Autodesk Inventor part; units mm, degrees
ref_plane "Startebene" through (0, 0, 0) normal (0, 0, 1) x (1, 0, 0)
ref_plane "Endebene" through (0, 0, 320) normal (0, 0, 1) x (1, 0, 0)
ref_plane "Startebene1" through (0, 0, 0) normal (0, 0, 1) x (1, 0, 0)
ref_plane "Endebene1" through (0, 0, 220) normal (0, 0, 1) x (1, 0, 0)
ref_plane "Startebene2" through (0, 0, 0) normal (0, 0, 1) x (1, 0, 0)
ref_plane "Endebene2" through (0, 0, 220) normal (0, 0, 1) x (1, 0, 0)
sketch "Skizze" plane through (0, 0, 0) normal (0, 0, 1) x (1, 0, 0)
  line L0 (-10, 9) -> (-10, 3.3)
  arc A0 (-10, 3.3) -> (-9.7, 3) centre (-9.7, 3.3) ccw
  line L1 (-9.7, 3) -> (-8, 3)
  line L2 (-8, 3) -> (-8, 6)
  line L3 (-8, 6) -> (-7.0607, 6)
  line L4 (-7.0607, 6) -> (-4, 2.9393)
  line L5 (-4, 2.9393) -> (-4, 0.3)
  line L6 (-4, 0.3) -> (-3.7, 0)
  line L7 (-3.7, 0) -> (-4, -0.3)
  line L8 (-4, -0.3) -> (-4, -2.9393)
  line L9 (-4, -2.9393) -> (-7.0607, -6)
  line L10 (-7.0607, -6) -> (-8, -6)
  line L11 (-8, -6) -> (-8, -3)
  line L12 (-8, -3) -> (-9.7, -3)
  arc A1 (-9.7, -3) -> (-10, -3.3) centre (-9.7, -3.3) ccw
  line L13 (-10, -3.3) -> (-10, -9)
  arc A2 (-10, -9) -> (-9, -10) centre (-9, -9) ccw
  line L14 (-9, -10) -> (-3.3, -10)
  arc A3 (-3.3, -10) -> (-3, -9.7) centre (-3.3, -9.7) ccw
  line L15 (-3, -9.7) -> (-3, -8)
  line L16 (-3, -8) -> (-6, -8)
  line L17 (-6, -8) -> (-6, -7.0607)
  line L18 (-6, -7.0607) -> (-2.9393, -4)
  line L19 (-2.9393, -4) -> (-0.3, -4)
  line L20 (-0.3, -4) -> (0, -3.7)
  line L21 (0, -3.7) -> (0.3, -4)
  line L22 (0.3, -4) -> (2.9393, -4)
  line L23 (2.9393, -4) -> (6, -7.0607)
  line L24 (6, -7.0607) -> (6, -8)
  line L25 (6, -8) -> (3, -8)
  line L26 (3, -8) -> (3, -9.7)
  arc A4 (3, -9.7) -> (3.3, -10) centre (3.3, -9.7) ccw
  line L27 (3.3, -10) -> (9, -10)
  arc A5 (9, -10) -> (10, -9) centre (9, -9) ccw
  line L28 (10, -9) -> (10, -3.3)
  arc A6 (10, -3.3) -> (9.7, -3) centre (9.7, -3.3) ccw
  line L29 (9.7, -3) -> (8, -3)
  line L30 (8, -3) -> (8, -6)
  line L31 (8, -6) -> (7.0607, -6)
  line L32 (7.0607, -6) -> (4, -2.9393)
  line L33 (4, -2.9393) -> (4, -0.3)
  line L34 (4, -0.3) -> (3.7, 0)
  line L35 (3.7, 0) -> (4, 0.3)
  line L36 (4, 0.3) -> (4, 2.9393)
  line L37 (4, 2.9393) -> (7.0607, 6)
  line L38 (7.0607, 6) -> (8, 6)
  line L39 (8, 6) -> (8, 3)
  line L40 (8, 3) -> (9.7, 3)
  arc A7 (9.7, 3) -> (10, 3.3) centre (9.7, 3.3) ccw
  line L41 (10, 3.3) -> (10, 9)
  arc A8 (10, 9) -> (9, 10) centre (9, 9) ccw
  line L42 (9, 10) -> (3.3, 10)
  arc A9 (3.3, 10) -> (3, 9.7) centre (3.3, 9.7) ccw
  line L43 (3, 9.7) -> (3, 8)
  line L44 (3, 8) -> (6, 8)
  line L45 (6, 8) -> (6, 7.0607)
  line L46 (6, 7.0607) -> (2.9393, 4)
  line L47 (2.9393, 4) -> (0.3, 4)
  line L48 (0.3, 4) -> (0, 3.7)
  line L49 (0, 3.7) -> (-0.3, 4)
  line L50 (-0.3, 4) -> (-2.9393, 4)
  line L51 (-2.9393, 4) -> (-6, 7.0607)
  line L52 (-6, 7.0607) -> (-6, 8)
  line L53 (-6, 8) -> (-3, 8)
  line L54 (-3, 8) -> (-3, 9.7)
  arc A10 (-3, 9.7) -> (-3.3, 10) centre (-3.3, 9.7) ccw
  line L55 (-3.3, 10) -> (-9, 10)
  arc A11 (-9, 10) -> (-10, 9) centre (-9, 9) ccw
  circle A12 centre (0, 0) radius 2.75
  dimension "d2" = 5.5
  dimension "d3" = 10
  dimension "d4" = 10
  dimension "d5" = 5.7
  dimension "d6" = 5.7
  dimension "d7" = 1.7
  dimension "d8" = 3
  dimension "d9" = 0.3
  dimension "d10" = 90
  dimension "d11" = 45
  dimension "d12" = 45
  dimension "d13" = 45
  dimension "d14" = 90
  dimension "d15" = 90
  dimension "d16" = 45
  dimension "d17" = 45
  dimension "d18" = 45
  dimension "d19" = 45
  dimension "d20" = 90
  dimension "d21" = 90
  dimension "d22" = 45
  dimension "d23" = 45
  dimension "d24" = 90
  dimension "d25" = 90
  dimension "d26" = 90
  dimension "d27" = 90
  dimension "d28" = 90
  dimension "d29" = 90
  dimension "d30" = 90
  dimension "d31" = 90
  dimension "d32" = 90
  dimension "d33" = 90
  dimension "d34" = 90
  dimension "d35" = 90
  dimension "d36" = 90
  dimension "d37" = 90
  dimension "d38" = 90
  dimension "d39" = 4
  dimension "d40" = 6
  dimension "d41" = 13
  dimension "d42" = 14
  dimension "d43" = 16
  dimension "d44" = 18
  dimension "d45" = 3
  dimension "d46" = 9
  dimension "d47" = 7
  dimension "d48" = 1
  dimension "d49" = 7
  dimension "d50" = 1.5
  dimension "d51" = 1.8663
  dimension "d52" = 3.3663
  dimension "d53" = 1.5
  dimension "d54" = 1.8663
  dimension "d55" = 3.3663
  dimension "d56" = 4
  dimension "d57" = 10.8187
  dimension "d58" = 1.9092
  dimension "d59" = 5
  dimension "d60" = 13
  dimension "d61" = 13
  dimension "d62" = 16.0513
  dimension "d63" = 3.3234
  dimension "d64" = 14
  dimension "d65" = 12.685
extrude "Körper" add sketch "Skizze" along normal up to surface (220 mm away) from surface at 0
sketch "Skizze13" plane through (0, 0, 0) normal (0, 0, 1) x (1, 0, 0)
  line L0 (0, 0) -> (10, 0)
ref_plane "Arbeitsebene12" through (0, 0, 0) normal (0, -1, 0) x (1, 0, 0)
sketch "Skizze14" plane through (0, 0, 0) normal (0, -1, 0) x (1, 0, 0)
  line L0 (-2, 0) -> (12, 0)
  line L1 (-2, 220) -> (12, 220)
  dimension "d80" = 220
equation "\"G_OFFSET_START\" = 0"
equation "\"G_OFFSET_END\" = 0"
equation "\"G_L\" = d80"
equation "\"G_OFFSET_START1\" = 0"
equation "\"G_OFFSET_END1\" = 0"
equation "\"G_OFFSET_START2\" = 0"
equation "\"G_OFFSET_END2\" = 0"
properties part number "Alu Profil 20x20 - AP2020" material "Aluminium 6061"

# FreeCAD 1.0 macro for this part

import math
import FreeCAD as App
import Part
import Sketcher

V = App.Vector
Q = App.Units.Quantity

doc = App.newDocument("Part")
params = doc.addObject("Spreadsheet::Sheet", "Params")
for row, (alias, value) in enumerate([
    ("sketch1_radius", "1 mm"),
    ("sketch1_diameter", "5.5 mm"),
    ("sketch1_radius2", "0.3 mm"),
    ("sketch1_width", "3 mm"),
    ("sketch1_width2", "1.7 mm"),
    ("pad1_length", "220 mm"),
], start=1):
    params.set(f"A{row}", alias)
    params.set(f"B{row}", "=" + value)
    params.setAlias(f"B{row}", alias)

body = doc.addObject("PartDesign::Body", "Body")

sketch1 = doc.addObject("Sketcher::SketchObject", "Sketch")
body.addObject(sketch1)
sketch1.AttachmentSupport = (doc.XY_Plane, [""])
sketch1.MapMode = "FlatFace"
sketch1.addGeometry(Part.ArcOfCircle(Part.Circle(V(-9, 9, 0), V(0, 0, 1), 1), math.radians(90), math.radians(180)), False)
sketch1.addGeometry(Part.LineSegment(V(-10, 9, 0), V(-10, 3.3, 0)), False)
sketch1.addGeometry(Part.ArcOfCircle(Part.Circle(V(-9.7, 3.3, 0), V(0, 0, 1), 0.3), math.radians(180), math.radians(270)), False)
sketch1.addGeometry(Part.LineSegment(V(-9.7, 3, 0), V(-8, 3, 0)), False)
sketch1.addGeometry(Part.LineSegment(V(-8, 3, 0), V(-8, 6, 0)), False)
sketch1.addGeometry(Part.LineSegment(V(-8, 6, 0), V(-7.0607, 6, 0)), False)
sketch1.addGeometry(Part.LineSegment(V(-7.0607, 6, 0), V(-4, 2.9393, 0)), False)
sketch1.addGeometry(Part.LineSegment(V(-4, 2.9393, 0), V(-4, 0.3, 0)), False)
sketch1.addGeometry(Part.LineSegment(V(-4, 0.3, 0), V(-3.7, 0, 0)), False)
sketch1.addGeometry(Part.LineSegment(V(-3.7, 0, 0), V(-4, -0.3, 0)), False)
sketch1.addGeometry(Part.LineSegment(V(-4, -0.3, 0), V(-4, -2.9393, 0)), False)
sketch1.addGeometry(Part.LineSegment(V(-4, -2.9393, 0), V(-7.0607, -6, 0)), False)
sketch1.addGeometry(Part.LineSegment(V(-7.0607, -6, 0), V(-8, -6, 0)), False)
sketch1.addGeometry(Part.LineSegment(V(-8, -6, 0), V(-8, -3, 0)), False)
sketch1.addGeometry(Part.LineSegment(V(-8, -3, 0), V(-9.7, -3, 0)), False)
sketch1.addGeometry(Part.ArcOfCircle(Part.Circle(V(-9.7, -3.3, 0), V(0, 0, 1), 0.3), math.radians(90), math.radians(180)), False)
sketch1.addGeometry(Part.LineSegment(V(-10, -3.3, 0), V(-10, -9, 0)), False)
sketch1.addGeometry(Part.ArcOfCircle(Part.Circle(V(-9, -9, 0), V(0, 0, 1), 1), math.radians(180), math.radians(270)), False)
sketch1.addGeometry(Part.LineSegment(V(-9, -10, 0), V(-3.3, -10, 0)), False)
sketch1.addGeometry(Part.ArcOfCircle(Part.Circle(V(-3.3, -9.7, 0), V(0, 0, 1), 0.3), math.radians(-90), math.radians(0)), False)
sketch1.addGeometry(Part.LineSegment(V(-3, -9.7, 0), V(-3, -8, 0)), False)
sketch1.addGeometry(Part.LineSegment(V(-3, -8, 0), V(-6, -8, 0)), False)
sketch1.addGeometry(Part.LineSegment(V(-6, -8, 0), V(-6, -7.0607, 0)), False)
sketch1.addGeometry(Part.LineSegment(V(-6, -7.0607, 0), V(-2.9393, -4, 0)), False)
sketch1.addGeometry(Part.LineSegment(V(-2.9393, -4, 0), V(-0.3, -4, 0)), False)
sketch1.addGeometry(Part.LineSegment(V(-0.3, -4, 0), V(0, -3.7, 0)), False)
sketch1.addGeometry(Part.LineSegment(V(0, -3.7, 0), V(0.3, -4, 0)), False)
sketch1.addGeometry(Part.LineSegment(V(0.3, -4, 0), V(2.9393, -4, 0)), False)
sketch1.addGeometry(Part.LineSegment(V(2.9393, -4, 0), V(6, -7.0607, 0)), False)
sketch1.addGeometry(Part.LineSegment(V(6, -7.0607, 0), V(6, -8, 0)), False)
sketch1.addGeometry(Part.LineSegment(V(6, -8, 0), V(3, -8, 0)), False)
sketch1.addGeometry(Part.LineSegment(V(3, -8, 0), V(3, -9.7, 0)), False)
sketch1.addGeometry(Part.ArcOfCircle(Part.Circle(V(3.3, -9.7, 0), V(0, 0, 1), 0.3), math.radians(180), math.radians(270)), False)
sketch1.addGeometry(Part.LineSegment(V(3.3, -10, 0), V(9, -10, 0)), False)
sketch1.addGeometry(Part.ArcOfCircle(Part.Circle(V(9, -9, 0), V(0, 0, 1), 1), math.radians(-90), math.radians(0)), False)
sketch1.addGeometry(Part.LineSegment(V(10, -9, 0), V(10, -3.3, 0)), False)
sketch1.addGeometry(Part.ArcOfCircle(Part.Circle(V(9.7, -3.3, 0), V(0, 0, 1), 0.3), math.radians(0), math.radians(90)), False)
sketch1.addGeometry(Part.LineSegment(V(9.7, -3, 0), V(8, -3, 0)), False)
sketch1.addGeometry(Part.LineSegment(V(8, -3, 0), V(8, -6, 0)), False)
sketch1.addGeometry(Part.LineSegment(V(8, -6, 0), V(7.0607, -6, 0)), False)
sketch1.addGeometry(Part.LineSegment(V(7.0607, -6, 0), V(4, -2.9393, 0)), False)
sketch1.addGeometry(Part.LineSegment(V(4, -2.9393, 0), V(4, -0.3, 0)), False)
sketch1.addGeometry(Part.LineSegment(V(4, -0.3, 0), V(3.7, 0, 0)), False)
sketch1.addGeometry(Part.LineSegment(V(3.7, 0, 0), V(4, 0.3, 0)), False)
sketch1.addGeometry(Part.LineSegment(V(4, 0.3, 0), V(4, 2.9393, 0)), False)
sketch1.addGeometry(Part.LineSegment(V(4, 2.9393, 0), V(7.0607, 6, 0)), False)
sketch1.addGeometry(Part.LineSegment(V(7.0607, 6, 0), V(8, 6, 0)), False)
sketch1.addGeometry(Part.LineSegment(V(8, 6, 0), V(8, 3, 0)), False)
sketch1.addGeometry(Part.LineSegment(V(8, 3, 0), V(9.7, 3, 0)), False)
sketch1.addGeometry(Part.ArcOfCircle(Part.Circle(V(9.7, 3.3, 0), V(0, 0, 1), 0.3), math.radians(-90), math.radians(0)), False)
sketch1.addGeometry(Part.LineSegment(V(10, 3.3, 0), V(10, 9, 0)), False)
sketch1.addGeometry(Part.ArcOfCircle(Part.Circle(V(9, 9, 0), V(0, 0, 1), 1), math.radians(0), math.radians(90)), False)
sketch1.addGeometry(Part.LineSegment(V(9, 10, 0), V(3.3, 10, 0)), False)
sketch1.addGeometry(Part.ArcOfCircle(Part.Circle(V(3.3, 9.7, 0), V(0, 0, 1), 0.3), math.radians(90), math.radians(180)), False)
sketch1.addGeometry(Part.LineSegment(V(3, 9.7, 0), V(3, 8, 0)), False)
sketch1.addGeometry(Part.LineSegment(V(3, 8, 0), V(6, 8, 0)), False)
sketch1.addGeometry(Part.LineSegment(V(6, 8, 0), V(6, 7.0607, 0)), False)
sketch1.addGeometry(Part.LineSegment(V(6, 7.0607, 0), V(2.9393, 4, 0)), False)
sketch1.addGeometry(Part.LineSegment(V(2.9393, 4, 0), V(0.3, 4, 0)), False)
sketch1.addGeometry(Part.LineSegment(V(0.3, 4, 0), V(0, 3.7, 0)), False)
sketch1.addGeometry(Part.LineSegment(V(0, 3.7, 0), V(-0.3, 4, 0)), False)
sketch1.addGeometry(Part.LineSegment(V(-0.3, 4, 0), V(-2.9393, 4, 0)), False)
sketch1.addGeometry(Part.LineSegment(V(-2.9393, 4, 0), V(-6, 7.0607, 0)), False)
sketch1.addGeometry(Part.LineSegment(V(-6, 7.0607, 0), V(-6, 8, 0)), False)
sketch1.addGeometry(Part.LineSegment(V(-6, 8, 0), V(-3, 8, 0)), False)
sketch1.addGeometry(Part.LineSegment(V(-3, 8, 0), V(-3, 9.7, 0)), False)
sketch1.addGeometry(Part.ArcOfCircle(Part.Circle(V(-3.3, 9.7, 0), V(0, 0, 1), 0.3), math.radians(0), math.radians(90)), False)
sketch1.addGeometry(Part.LineSegment(V(-3.3, 10, 0), V(-9, 10, 0)), False)
sketch1.addGeometry(Part.Circle(V(0, 0, 0), V(0, 0, 1), 2.75), False)
sketch1.addConstraint(Sketcher.Constraint("Tangent", 0, 2, 1, 1))
sketch1.addConstraint(Sketcher.Constraint("Tangent", 1, 2, 2, 1))
sketch1.addConstraint(Sketcher.Constraint("Tangent", 2, 2, 3, 1))
sketch1.addConstraint(Sketcher.Constraint("Coincident", 3, 2, 4, 1))
sketch1.addConstraint(Sketcher.Constraint("Coincident", 4, 2, 5, 1))
sketch1.addConstraint(Sketcher.Constraint("Coincident", 5, 2, 6, 1))
sketch1.addConstraint(Sketcher.Constraint("Coincident", 6, 2, 7, 1))
sketch1.addConstraint(Sketcher.Constraint("Coincident", 7, 2, 8, 1))
sketch1.addConstraint(Sketcher.Constraint("Coincident", 8, 2, 9, 1))
sketch1.addConstraint(Sketcher.Constraint("Coincident", 9, 2, 10, 1))
sketch1.addConstraint(Sketcher.Constraint("Coincident", 10, 2, 11, 1))
sketch1.addConstraint(Sketcher.Constraint("Coincident", 11, 2, 12, 1))
sketch1.addConstraint(Sketcher.Constraint("Coincident", 12, 2, 13, 1))
sketch1.addConstraint(Sketcher.Constraint("Coincident", 13, 2, 14, 1))
sketch1.addConstraint(Sketcher.Constraint("Tangent", 14, 2, 15, 1))
sketch1.addConstraint(Sketcher.Constraint("Tangent", 15, 2, 16, 1))
sketch1.addConstraint(Sketcher.Constraint("Tangent", 16, 2, 17, 1))
sketch1.addConstraint(Sketcher.Constraint("Tangent", 17, 2, 18, 1))
sketch1.addConstraint(Sketcher.Constraint("Tangent", 18, 2, 19, 1))
sketch1.addConstraint(Sketcher.Constraint("Tangent", 19, 2, 20, 1))
sketch1.addConstraint(Sketcher.Constraint("Coincident", 20, 2, 21, 1))
sketch1.addConstraint(Sketcher.Constraint("Coincident", 21, 2, 22, 1))
sketch1.addConstraint(Sketcher.Constraint("Coincident", 22, 2, 23, 1))
sketch1.addConstraint(Sketcher.Constraint("Coincident", 23, 2, 24, 1))
sketch1.addConstraint(Sketcher.Constraint("Coincident", 24, 2, 25, 1))
sketch1.addConstraint(Sketcher.Constraint("Coincident", 25, 2, 26, 1))
sketch1.addConstraint(Sketcher.Constraint("Coincident", 26, 2, 27, 1))
sketch1.addConstraint(Sketcher.Constraint("Coincident", 27, 2, 28, 1))
sketch1.addConstraint(Sketcher.Constraint("Coincident", 28, 2, 29, 1))
sketch1.addConstraint(Sketcher.Constraint("Coincident", 29, 2, 30, 1))
sketch1.addConstraint(Sketcher.Constraint("Coincident", 30, 2, 31, 1))
sketch1.addConstraint(Sketcher.Constraint("Tangent", 31, 2, 32, 1))
sketch1.addConstraint(Sketcher.Constraint("Tangent", 32, 2, 33, 1))
sketch1.addConstraint(Sketcher.Constraint("Tangent", 33, 2, 34, 1))
sketch1.addConstraint(Sketcher.Constraint("Tangent", 34, 2, 35, 1))
sketch1.addConstraint(Sketcher.Constraint("Tangent", 35, 2, 36, 1))
sketch1.addConstraint(Sketcher.Constraint("Tangent", 36, 2, 37, 1))
sketch1.addConstraint(Sketcher.Constraint("Coincident", 37, 2, 38, 1))
sketch1.addConstraint(Sketcher.Constraint("Coincident", 38, 2, 39, 1))
sketch1.addConstraint(Sketcher.Constraint("Coincident", 39, 2, 40, 1))
sketch1.addConstraint(Sketcher.Constraint("Coincident", 40, 2, 41, 1))
sketch1.addConstraint(Sketcher.Constraint("Coincident", 41, 2, 42, 1))
sketch1.addConstraint(Sketcher.Constraint("Coincident", 42, 2, 43, 1))
sketch1.addConstraint(Sketcher.Constraint("Coincident", 43, 2, 44, 1))
sketch1.addConstraint(Sketcher.Constraint("Coincident", 44, 2, 45, 1))
sketch1.addConstraint(Sketcher.Constraint("Coincident", 45, 2, 46, 1))
sketch1.addConstraint(Sketcher.Constraint("Coincident", 46, 2, 47, 1))
sketch1.addConstraint(Sketcher.Constraint("Coincident", 47, 2, 48, 1))
sketch1.addConstraint(Sketcher.Constraint("Tangent", 48, 2, 49, 1))
sketch1.addConstraint(Sketcher.Constraint("Tangent", 49, 2, 50, 1))
sketch1.addConstraint(Sketcher.Constraint("Tangent", 50, 2, 51, 1))
sketch1.addConstraint(Sketcher.Constraint("Tangent", 51, 2, 52, 1))
sketch1.addConstraint(Sketcher.Constraint("Tangent", 52, 2, 53, 1))
sketch1.addConstraint(Sketcher.Constraint("Tangent", 53, 2, 54, 1))
sketch1.addConstraint(Sketcher.Constraint("Coincident", 54, 2, 55, 1))
sketch1.addConstraint(Sketcher.Constraint("Coincident", 55, 2, 56, 1))
sketch1.addConstraint(Sketcher.Constraint("Coincident", 56, 2, 57, 1))
sketch1.addConstraint(Sketcher.Constraint("Coincident", 57, 2, 58, 1))
sketch1.addConstraint(Sketcher.Constraint("Coincident", 58, 2, 59, 1))
sketch1.addConstraint(Sketcher.Constraint("Coincident", 59, 2, 60, 1))
sketch1.addConstraint(Sketcher.Constraint("Coincident", 60, 2, 61, 1))
sketch1.addConstraint(Sketcher.Constraint("Coincident", 61, 2, 62, 1))
sketch1.addConstraint(Sketcher.Constraint("Coincident", 62, 2, 63, 1))
sketch1.addConstraint(Sketcher.Constraint("Coincident", 63, 2, 64, 1))
sketch1.addConstraint(Sketcher.Constraint("Coincident", 64, 2, 65, 1))
sketch1.addConstraint(Sketcher.Constraint("Tangent", 65, 2, 66, 1))
sketch1.addConstraint(Sketcher.Constraint("Tangent", 66, 2, 67, 1))
sketch1.addConstraint(Sketcher.Constraint("Tangent", 67, 2, 0, 1))
sketch1.addConstraint(Sketcher.Constraint("Vertical", 1))
sketch1.addConstraint(Sketcher.Constraint("Horizontal", 3))
sketch1.addConstraint(Sketcher.Constraint("Vertical", 4))
sketch1.addConstraint(Sketcher.Constraint("Horizontal", 5))
sketch1.addConstraint(Sketcher.Constraint("Vertical", 7))
sketch1.addConstraint(Sketcher.Constraint("Vertical", 10))
sketch1.addConstraint(Sketcher.Constraint("Horizontal", 12))
sketch1.addConstraint(Sketcher.Constraint("Vertical", 13))
sketch1.addConstraint(Sketcher.Constraint("Horizontal", 14))
sketch1.addConstraint(Sketcher.Constraint("Vertical", 16))
sketch1.addConstraint(Sketcher.Constraint("Horizontal", 18))
sketch1.addConstraint(Sketcher.Constraint("Vertical", 20))
sketch1.addConstraint(Sketcher.Constraint("Horizontal", 21))
sketch1.addConstraint(Sketcher.Constraint("Vertical", 22))
sketch1.addConstraint(Sketcher.Constraint("Horizontal", 24))
sketch1.addConstraint(Sketcher.Constraint("Horizontal", 27))
sketch1.addConstraint(Sketcher.Constraint("Vertical", 29))
sketch1.addConstraint(Sketcher.Constraint("Horizontal", 30))
sketch1.addConstraint(Sketcher.Constraint("Vertical", 31))
sketch1.addConstraint(Sketcher.Constraint("Horizontal", 33))
sketch1.addConstraint(Sketcher.Constraint("Vertical", 35))
sketch1.addConstraint(Sketcher.Constraint("Horizontal", 37))
sketch1.addConstraint(Sketcher.Constraint("Vertical", 38))
sketch1.addConstraint(Sketcher.Constraint("Horizontal", 39))
sketch1.addConstraint(Sketcher.Constraint("Vertical", 41))
sketch1.addConstraint(Sketcher.Constraint("Vertical", 44))
sketch1.addConstraint(Sketcher.Constraint("Horizontal", 46))
sketch1.addConstraint(Sketcher.Constraint("Vertical", 47))
sketch1.addConstraint(Sketcher.Constraint("Horizontal", 48))
sketch1.addConstraint(Sketcher.Constraint("Vertical", 50))
sketch1.addConstraint(Sketcher.Constraint("Horizontal", 52))
sketch1.addConstraint(Sketcher.Constraint("Vertical", 54))
sketch1.addConstraint(Sketcher.Constraint("Horizontal", 55))
sketch1.addConstraint(Sketcher.Constraint("Vertical", 56))
sketch1.addConstraint(Sketcher.Constraint("Horizontal", 58))
sketch1.addConstraint(Sketcher.Constraint("Horizontal", 61))
sketch1.addConstraint(Sketcher.Constraint("Vertical", 63))
sketch1.addConstraint(Sketcher.Constraint("Horizontal", 64))
sketch1.addConstraint(Sketcher.Constraint("Vertical", 65))
sketch1.addConstraint(Sketcher.Constraint("Horizontal", 67))
sketch1.addConstraint(Sketcher.Constraint("Coincident", 68, 3, -1, 1))
sketch1.addConstraint(Sketcher.Constraint("Equal", 2, 15))
sketch1.addConstraint(Sketcher.Constraint("Equal", 0, 17))
sketch1.addConstraint(Sketcher.Constraint("Equal", 15, 19))
sketch1.addConstraint(Sketcher.Constraint("Equal", 19, 32))
sketch1.addConstraint(Sketcher.Constraint("Equal", 17, 34))
sketch1.addConstraint(Sketcher.Constraint("Equal", 32, 36))
sketch1.addConstraint(Sketcher.Constraint("Equal", 36, 49))
sketch1.addConstraint(Sketcher.Constraint("Equal", 34, 51))
sketch1.addConstraint(Sketcher.Constraint("Equal", 49, 53))
sketch1.addConstraint(Sketcher.Constraint("Equal", 53, 66))
sketch1.addConstraint(Sketcher.Constraint("Symmetric", 0, 3, 34, 3, -1, 1))
sketch1.addConstraint(Sketcher.Constraint("Symmetric", 15, 3, 49, 3, -1, 1))
sketch1.addConstraint(Sketcher.Constraint("Symmetric", 19, 3, 53, 3, -1, 1))
sketch1.addConstraint(Sketcher.Constraint("Symmetric", 3, 2, 37, 2, -1, 1))
sketch1.addConstraint(Sketcher.Constraint("Symmetric", 5, 2, 39, 2, -1, 1))
sketch1.addConstraint(Sketcher.Constraint("Symmetric", 6, 2, 40, 2, -1, 1))
sketch1.addConstraint(Sketcher.Constraint("Symmetric", 8, 2, 42, 2, -1, 1))
sketch1.addConstraint(Sketcher.Constraint("Symmetric", 9, 2, 43, 2, -1, 1))
sketch1.addConstraint(Sketcher.Constraint("Symmetric", 11, 2, 45, 2, -1, 1))
sketch1.addConstraint(Sketcher.Constraint("Symmetric", 21, 2, 55, 2, -1, 1))
sketch1.addConstraint(Sketcher.Constraint("Symmetric", 23, 2, 57, 2, -1, 1))
sketch1.addConstraint(Sketcher.Constraint("Symmetric", 25, 2, 59, 2, -1, 1))
sketch1.addConstraint(Sketcher.Constraint("Symmetric", 26, 2, 60, 2, -1, 1))
sketch1.addConstraint(Sketcher.Constraint("Symmetric", 28, 2, 62, 2, -1, 1))
sketch1.addConstraint(Sketcher.Constraint("Symmetric", 30, 2, 64, 2, -1, 1))
sketch1.addConstraint(Sketcher.Constraint("Symmetric", 19, 3, 32, 3, -2))
sketch1.addConstraint(Sketcher.Constraint("Symmetric", 15, 3, 36, 3, -2))
sketch1.addConstraint(Sketcher.Constraint("Symmetric", 24, 2, 26, 2, -2))
sketch1.addConstraint(Sketcher.Constraint("Symmetric", 22, 2, 28, 2, -2))
sketch1.addConstraint(Sketcher.Constraint("Symmetric", 12, 2, 38, 2, -2))
sketch1.addConstraint(Sketcher.Constraint("Symmetric", 10, 2, 40, 2, -2))
sketch1.addConstraint(Sketcher.Constraint("PointOnObject", 8, 2, -1))
sketch1.addConstraint(Sketcher.Constraint("PointOnObject", 25, 2, -2))
sketch1.addConstraint(Sketcher.Constraint("Parallel", 6, 8))
sketch1.addConstraint(Sketcher.Constraint("Perpendicular", 8, 9))
sketch1.addConstraint(Sketcher.Constraint("Parallel", 9, 11))
sketch1.addConstraint(Sketcher.Constraint("Parallel", 11, 23))
sketch1.addConstraint(Sketcher.Constraint("Parallel", 23, 25))
sketch1.addConstraint(Sketcher.Constraint("Perpendicular", 25, 26))
sketch1.addConstraint(Sketcher.Constraint("Parallel", 26, 28))
sketch1.addConstraint(Sketcher.Constraint("Parallel", 40, 42))
sketch1.addConstraint(Sketcher.Constraint("Parallel", 43, 45))
sketch1.addConstraint(Sketcher.Constraint("Parallel", 45, 57))
sketch1.addConstraint(Sketcher.Constraint("Parallel", 57, 59))
sketch1.addConstraint(Sketcher.Constraint("Parallel", 60, 62))
sketch1.addConstraint(Sketcher.Constraint("Horizontal", 21, 2, 29, 2))
sketch1.addConstraint(Sketcher.Constraint("Vertical", 38, 2, 46, 2))
sketch1.addConstraint(Sketcher.Constraint("Equal", 67, 1))
sketch1.addConstraint(Sketcher.Constraint("Equal", 64, 4))
sketch1.addConstraint(Sketcher.Constraint("Equal", 61, 7))
sketch1.addConstraint(Sketcher.Constraint("Equal", 48, 20))
sketch1.addConstraint(Sketcher.Constraint("Equal", 46, 22))
sketch1.addConstraint(Sketcher.Constraint("Equal", 11, 23))
sketch1.addConstraint(Sketcher.Constraint("Equal", 9, 25))
sketch1.addConstraint(Sketcher.Constraint("Radius", 0, Q("1 mm")))
sketch1.addConstraint(Sketcher.Constraint("Diameter", 68, Q("5.5 mm")))
sketch1.addConstraint(Sketcher.Constraint("Radius", 2, Q("0.3 mm")))
sketch1.addConstraint(Sketcher.Constraint("DistanceX", 21, 2, 21, 1, Q("3 mm")))
sketch1.addConstraint(Sketcher.Constraint("DistanceX", 3, 1, 3, 2, Q("1.7 mm")))
sketch1.addConstraint(Sketcher.Constraint("DistanceX", 18, 1, 18, 2, Q("5.7 mm")))
sketch1.addConstraint(Sketcher.Constraint("DistanceX", 0, 3, -1, 1, Q("9 mm")))
sketch1.addConstraint(Sketcher.Constraint("DistanceX", 6, 2, -1, 1, Q("4 mm")))
sketch1.addConstraint(Sketcher.Constraint("DistanceY", -1, 1, 7, 2, Q("0.3 mm")))
sketch1.addConstraint(Sketcher.Constraint("DistanceX", 5, 1, 5, 2, Q("0.9393 mm")))
sketch1.setExpression("Constraints[163]", "Params.sketch1_radius")
sketch1.setExpression("Constraints[164]", "Params.sketch1_diameter")
sketch1.setExpression("Constraints[165]", "Params.sketch1_radius2")
sketch1.setExpression("Constraints[166]", "Params.sketch1_width")
sketch1.setExpression("Constraints[167]", "Params.sketch1_width2")
pad1 = doc.addObject("PartDesign::Pad", "Pad")
body.addObject(pad1)
pad1.Profile = sketch1
pad1.setExpression("Length", "Params.pad1_length")

doc.recompute()
